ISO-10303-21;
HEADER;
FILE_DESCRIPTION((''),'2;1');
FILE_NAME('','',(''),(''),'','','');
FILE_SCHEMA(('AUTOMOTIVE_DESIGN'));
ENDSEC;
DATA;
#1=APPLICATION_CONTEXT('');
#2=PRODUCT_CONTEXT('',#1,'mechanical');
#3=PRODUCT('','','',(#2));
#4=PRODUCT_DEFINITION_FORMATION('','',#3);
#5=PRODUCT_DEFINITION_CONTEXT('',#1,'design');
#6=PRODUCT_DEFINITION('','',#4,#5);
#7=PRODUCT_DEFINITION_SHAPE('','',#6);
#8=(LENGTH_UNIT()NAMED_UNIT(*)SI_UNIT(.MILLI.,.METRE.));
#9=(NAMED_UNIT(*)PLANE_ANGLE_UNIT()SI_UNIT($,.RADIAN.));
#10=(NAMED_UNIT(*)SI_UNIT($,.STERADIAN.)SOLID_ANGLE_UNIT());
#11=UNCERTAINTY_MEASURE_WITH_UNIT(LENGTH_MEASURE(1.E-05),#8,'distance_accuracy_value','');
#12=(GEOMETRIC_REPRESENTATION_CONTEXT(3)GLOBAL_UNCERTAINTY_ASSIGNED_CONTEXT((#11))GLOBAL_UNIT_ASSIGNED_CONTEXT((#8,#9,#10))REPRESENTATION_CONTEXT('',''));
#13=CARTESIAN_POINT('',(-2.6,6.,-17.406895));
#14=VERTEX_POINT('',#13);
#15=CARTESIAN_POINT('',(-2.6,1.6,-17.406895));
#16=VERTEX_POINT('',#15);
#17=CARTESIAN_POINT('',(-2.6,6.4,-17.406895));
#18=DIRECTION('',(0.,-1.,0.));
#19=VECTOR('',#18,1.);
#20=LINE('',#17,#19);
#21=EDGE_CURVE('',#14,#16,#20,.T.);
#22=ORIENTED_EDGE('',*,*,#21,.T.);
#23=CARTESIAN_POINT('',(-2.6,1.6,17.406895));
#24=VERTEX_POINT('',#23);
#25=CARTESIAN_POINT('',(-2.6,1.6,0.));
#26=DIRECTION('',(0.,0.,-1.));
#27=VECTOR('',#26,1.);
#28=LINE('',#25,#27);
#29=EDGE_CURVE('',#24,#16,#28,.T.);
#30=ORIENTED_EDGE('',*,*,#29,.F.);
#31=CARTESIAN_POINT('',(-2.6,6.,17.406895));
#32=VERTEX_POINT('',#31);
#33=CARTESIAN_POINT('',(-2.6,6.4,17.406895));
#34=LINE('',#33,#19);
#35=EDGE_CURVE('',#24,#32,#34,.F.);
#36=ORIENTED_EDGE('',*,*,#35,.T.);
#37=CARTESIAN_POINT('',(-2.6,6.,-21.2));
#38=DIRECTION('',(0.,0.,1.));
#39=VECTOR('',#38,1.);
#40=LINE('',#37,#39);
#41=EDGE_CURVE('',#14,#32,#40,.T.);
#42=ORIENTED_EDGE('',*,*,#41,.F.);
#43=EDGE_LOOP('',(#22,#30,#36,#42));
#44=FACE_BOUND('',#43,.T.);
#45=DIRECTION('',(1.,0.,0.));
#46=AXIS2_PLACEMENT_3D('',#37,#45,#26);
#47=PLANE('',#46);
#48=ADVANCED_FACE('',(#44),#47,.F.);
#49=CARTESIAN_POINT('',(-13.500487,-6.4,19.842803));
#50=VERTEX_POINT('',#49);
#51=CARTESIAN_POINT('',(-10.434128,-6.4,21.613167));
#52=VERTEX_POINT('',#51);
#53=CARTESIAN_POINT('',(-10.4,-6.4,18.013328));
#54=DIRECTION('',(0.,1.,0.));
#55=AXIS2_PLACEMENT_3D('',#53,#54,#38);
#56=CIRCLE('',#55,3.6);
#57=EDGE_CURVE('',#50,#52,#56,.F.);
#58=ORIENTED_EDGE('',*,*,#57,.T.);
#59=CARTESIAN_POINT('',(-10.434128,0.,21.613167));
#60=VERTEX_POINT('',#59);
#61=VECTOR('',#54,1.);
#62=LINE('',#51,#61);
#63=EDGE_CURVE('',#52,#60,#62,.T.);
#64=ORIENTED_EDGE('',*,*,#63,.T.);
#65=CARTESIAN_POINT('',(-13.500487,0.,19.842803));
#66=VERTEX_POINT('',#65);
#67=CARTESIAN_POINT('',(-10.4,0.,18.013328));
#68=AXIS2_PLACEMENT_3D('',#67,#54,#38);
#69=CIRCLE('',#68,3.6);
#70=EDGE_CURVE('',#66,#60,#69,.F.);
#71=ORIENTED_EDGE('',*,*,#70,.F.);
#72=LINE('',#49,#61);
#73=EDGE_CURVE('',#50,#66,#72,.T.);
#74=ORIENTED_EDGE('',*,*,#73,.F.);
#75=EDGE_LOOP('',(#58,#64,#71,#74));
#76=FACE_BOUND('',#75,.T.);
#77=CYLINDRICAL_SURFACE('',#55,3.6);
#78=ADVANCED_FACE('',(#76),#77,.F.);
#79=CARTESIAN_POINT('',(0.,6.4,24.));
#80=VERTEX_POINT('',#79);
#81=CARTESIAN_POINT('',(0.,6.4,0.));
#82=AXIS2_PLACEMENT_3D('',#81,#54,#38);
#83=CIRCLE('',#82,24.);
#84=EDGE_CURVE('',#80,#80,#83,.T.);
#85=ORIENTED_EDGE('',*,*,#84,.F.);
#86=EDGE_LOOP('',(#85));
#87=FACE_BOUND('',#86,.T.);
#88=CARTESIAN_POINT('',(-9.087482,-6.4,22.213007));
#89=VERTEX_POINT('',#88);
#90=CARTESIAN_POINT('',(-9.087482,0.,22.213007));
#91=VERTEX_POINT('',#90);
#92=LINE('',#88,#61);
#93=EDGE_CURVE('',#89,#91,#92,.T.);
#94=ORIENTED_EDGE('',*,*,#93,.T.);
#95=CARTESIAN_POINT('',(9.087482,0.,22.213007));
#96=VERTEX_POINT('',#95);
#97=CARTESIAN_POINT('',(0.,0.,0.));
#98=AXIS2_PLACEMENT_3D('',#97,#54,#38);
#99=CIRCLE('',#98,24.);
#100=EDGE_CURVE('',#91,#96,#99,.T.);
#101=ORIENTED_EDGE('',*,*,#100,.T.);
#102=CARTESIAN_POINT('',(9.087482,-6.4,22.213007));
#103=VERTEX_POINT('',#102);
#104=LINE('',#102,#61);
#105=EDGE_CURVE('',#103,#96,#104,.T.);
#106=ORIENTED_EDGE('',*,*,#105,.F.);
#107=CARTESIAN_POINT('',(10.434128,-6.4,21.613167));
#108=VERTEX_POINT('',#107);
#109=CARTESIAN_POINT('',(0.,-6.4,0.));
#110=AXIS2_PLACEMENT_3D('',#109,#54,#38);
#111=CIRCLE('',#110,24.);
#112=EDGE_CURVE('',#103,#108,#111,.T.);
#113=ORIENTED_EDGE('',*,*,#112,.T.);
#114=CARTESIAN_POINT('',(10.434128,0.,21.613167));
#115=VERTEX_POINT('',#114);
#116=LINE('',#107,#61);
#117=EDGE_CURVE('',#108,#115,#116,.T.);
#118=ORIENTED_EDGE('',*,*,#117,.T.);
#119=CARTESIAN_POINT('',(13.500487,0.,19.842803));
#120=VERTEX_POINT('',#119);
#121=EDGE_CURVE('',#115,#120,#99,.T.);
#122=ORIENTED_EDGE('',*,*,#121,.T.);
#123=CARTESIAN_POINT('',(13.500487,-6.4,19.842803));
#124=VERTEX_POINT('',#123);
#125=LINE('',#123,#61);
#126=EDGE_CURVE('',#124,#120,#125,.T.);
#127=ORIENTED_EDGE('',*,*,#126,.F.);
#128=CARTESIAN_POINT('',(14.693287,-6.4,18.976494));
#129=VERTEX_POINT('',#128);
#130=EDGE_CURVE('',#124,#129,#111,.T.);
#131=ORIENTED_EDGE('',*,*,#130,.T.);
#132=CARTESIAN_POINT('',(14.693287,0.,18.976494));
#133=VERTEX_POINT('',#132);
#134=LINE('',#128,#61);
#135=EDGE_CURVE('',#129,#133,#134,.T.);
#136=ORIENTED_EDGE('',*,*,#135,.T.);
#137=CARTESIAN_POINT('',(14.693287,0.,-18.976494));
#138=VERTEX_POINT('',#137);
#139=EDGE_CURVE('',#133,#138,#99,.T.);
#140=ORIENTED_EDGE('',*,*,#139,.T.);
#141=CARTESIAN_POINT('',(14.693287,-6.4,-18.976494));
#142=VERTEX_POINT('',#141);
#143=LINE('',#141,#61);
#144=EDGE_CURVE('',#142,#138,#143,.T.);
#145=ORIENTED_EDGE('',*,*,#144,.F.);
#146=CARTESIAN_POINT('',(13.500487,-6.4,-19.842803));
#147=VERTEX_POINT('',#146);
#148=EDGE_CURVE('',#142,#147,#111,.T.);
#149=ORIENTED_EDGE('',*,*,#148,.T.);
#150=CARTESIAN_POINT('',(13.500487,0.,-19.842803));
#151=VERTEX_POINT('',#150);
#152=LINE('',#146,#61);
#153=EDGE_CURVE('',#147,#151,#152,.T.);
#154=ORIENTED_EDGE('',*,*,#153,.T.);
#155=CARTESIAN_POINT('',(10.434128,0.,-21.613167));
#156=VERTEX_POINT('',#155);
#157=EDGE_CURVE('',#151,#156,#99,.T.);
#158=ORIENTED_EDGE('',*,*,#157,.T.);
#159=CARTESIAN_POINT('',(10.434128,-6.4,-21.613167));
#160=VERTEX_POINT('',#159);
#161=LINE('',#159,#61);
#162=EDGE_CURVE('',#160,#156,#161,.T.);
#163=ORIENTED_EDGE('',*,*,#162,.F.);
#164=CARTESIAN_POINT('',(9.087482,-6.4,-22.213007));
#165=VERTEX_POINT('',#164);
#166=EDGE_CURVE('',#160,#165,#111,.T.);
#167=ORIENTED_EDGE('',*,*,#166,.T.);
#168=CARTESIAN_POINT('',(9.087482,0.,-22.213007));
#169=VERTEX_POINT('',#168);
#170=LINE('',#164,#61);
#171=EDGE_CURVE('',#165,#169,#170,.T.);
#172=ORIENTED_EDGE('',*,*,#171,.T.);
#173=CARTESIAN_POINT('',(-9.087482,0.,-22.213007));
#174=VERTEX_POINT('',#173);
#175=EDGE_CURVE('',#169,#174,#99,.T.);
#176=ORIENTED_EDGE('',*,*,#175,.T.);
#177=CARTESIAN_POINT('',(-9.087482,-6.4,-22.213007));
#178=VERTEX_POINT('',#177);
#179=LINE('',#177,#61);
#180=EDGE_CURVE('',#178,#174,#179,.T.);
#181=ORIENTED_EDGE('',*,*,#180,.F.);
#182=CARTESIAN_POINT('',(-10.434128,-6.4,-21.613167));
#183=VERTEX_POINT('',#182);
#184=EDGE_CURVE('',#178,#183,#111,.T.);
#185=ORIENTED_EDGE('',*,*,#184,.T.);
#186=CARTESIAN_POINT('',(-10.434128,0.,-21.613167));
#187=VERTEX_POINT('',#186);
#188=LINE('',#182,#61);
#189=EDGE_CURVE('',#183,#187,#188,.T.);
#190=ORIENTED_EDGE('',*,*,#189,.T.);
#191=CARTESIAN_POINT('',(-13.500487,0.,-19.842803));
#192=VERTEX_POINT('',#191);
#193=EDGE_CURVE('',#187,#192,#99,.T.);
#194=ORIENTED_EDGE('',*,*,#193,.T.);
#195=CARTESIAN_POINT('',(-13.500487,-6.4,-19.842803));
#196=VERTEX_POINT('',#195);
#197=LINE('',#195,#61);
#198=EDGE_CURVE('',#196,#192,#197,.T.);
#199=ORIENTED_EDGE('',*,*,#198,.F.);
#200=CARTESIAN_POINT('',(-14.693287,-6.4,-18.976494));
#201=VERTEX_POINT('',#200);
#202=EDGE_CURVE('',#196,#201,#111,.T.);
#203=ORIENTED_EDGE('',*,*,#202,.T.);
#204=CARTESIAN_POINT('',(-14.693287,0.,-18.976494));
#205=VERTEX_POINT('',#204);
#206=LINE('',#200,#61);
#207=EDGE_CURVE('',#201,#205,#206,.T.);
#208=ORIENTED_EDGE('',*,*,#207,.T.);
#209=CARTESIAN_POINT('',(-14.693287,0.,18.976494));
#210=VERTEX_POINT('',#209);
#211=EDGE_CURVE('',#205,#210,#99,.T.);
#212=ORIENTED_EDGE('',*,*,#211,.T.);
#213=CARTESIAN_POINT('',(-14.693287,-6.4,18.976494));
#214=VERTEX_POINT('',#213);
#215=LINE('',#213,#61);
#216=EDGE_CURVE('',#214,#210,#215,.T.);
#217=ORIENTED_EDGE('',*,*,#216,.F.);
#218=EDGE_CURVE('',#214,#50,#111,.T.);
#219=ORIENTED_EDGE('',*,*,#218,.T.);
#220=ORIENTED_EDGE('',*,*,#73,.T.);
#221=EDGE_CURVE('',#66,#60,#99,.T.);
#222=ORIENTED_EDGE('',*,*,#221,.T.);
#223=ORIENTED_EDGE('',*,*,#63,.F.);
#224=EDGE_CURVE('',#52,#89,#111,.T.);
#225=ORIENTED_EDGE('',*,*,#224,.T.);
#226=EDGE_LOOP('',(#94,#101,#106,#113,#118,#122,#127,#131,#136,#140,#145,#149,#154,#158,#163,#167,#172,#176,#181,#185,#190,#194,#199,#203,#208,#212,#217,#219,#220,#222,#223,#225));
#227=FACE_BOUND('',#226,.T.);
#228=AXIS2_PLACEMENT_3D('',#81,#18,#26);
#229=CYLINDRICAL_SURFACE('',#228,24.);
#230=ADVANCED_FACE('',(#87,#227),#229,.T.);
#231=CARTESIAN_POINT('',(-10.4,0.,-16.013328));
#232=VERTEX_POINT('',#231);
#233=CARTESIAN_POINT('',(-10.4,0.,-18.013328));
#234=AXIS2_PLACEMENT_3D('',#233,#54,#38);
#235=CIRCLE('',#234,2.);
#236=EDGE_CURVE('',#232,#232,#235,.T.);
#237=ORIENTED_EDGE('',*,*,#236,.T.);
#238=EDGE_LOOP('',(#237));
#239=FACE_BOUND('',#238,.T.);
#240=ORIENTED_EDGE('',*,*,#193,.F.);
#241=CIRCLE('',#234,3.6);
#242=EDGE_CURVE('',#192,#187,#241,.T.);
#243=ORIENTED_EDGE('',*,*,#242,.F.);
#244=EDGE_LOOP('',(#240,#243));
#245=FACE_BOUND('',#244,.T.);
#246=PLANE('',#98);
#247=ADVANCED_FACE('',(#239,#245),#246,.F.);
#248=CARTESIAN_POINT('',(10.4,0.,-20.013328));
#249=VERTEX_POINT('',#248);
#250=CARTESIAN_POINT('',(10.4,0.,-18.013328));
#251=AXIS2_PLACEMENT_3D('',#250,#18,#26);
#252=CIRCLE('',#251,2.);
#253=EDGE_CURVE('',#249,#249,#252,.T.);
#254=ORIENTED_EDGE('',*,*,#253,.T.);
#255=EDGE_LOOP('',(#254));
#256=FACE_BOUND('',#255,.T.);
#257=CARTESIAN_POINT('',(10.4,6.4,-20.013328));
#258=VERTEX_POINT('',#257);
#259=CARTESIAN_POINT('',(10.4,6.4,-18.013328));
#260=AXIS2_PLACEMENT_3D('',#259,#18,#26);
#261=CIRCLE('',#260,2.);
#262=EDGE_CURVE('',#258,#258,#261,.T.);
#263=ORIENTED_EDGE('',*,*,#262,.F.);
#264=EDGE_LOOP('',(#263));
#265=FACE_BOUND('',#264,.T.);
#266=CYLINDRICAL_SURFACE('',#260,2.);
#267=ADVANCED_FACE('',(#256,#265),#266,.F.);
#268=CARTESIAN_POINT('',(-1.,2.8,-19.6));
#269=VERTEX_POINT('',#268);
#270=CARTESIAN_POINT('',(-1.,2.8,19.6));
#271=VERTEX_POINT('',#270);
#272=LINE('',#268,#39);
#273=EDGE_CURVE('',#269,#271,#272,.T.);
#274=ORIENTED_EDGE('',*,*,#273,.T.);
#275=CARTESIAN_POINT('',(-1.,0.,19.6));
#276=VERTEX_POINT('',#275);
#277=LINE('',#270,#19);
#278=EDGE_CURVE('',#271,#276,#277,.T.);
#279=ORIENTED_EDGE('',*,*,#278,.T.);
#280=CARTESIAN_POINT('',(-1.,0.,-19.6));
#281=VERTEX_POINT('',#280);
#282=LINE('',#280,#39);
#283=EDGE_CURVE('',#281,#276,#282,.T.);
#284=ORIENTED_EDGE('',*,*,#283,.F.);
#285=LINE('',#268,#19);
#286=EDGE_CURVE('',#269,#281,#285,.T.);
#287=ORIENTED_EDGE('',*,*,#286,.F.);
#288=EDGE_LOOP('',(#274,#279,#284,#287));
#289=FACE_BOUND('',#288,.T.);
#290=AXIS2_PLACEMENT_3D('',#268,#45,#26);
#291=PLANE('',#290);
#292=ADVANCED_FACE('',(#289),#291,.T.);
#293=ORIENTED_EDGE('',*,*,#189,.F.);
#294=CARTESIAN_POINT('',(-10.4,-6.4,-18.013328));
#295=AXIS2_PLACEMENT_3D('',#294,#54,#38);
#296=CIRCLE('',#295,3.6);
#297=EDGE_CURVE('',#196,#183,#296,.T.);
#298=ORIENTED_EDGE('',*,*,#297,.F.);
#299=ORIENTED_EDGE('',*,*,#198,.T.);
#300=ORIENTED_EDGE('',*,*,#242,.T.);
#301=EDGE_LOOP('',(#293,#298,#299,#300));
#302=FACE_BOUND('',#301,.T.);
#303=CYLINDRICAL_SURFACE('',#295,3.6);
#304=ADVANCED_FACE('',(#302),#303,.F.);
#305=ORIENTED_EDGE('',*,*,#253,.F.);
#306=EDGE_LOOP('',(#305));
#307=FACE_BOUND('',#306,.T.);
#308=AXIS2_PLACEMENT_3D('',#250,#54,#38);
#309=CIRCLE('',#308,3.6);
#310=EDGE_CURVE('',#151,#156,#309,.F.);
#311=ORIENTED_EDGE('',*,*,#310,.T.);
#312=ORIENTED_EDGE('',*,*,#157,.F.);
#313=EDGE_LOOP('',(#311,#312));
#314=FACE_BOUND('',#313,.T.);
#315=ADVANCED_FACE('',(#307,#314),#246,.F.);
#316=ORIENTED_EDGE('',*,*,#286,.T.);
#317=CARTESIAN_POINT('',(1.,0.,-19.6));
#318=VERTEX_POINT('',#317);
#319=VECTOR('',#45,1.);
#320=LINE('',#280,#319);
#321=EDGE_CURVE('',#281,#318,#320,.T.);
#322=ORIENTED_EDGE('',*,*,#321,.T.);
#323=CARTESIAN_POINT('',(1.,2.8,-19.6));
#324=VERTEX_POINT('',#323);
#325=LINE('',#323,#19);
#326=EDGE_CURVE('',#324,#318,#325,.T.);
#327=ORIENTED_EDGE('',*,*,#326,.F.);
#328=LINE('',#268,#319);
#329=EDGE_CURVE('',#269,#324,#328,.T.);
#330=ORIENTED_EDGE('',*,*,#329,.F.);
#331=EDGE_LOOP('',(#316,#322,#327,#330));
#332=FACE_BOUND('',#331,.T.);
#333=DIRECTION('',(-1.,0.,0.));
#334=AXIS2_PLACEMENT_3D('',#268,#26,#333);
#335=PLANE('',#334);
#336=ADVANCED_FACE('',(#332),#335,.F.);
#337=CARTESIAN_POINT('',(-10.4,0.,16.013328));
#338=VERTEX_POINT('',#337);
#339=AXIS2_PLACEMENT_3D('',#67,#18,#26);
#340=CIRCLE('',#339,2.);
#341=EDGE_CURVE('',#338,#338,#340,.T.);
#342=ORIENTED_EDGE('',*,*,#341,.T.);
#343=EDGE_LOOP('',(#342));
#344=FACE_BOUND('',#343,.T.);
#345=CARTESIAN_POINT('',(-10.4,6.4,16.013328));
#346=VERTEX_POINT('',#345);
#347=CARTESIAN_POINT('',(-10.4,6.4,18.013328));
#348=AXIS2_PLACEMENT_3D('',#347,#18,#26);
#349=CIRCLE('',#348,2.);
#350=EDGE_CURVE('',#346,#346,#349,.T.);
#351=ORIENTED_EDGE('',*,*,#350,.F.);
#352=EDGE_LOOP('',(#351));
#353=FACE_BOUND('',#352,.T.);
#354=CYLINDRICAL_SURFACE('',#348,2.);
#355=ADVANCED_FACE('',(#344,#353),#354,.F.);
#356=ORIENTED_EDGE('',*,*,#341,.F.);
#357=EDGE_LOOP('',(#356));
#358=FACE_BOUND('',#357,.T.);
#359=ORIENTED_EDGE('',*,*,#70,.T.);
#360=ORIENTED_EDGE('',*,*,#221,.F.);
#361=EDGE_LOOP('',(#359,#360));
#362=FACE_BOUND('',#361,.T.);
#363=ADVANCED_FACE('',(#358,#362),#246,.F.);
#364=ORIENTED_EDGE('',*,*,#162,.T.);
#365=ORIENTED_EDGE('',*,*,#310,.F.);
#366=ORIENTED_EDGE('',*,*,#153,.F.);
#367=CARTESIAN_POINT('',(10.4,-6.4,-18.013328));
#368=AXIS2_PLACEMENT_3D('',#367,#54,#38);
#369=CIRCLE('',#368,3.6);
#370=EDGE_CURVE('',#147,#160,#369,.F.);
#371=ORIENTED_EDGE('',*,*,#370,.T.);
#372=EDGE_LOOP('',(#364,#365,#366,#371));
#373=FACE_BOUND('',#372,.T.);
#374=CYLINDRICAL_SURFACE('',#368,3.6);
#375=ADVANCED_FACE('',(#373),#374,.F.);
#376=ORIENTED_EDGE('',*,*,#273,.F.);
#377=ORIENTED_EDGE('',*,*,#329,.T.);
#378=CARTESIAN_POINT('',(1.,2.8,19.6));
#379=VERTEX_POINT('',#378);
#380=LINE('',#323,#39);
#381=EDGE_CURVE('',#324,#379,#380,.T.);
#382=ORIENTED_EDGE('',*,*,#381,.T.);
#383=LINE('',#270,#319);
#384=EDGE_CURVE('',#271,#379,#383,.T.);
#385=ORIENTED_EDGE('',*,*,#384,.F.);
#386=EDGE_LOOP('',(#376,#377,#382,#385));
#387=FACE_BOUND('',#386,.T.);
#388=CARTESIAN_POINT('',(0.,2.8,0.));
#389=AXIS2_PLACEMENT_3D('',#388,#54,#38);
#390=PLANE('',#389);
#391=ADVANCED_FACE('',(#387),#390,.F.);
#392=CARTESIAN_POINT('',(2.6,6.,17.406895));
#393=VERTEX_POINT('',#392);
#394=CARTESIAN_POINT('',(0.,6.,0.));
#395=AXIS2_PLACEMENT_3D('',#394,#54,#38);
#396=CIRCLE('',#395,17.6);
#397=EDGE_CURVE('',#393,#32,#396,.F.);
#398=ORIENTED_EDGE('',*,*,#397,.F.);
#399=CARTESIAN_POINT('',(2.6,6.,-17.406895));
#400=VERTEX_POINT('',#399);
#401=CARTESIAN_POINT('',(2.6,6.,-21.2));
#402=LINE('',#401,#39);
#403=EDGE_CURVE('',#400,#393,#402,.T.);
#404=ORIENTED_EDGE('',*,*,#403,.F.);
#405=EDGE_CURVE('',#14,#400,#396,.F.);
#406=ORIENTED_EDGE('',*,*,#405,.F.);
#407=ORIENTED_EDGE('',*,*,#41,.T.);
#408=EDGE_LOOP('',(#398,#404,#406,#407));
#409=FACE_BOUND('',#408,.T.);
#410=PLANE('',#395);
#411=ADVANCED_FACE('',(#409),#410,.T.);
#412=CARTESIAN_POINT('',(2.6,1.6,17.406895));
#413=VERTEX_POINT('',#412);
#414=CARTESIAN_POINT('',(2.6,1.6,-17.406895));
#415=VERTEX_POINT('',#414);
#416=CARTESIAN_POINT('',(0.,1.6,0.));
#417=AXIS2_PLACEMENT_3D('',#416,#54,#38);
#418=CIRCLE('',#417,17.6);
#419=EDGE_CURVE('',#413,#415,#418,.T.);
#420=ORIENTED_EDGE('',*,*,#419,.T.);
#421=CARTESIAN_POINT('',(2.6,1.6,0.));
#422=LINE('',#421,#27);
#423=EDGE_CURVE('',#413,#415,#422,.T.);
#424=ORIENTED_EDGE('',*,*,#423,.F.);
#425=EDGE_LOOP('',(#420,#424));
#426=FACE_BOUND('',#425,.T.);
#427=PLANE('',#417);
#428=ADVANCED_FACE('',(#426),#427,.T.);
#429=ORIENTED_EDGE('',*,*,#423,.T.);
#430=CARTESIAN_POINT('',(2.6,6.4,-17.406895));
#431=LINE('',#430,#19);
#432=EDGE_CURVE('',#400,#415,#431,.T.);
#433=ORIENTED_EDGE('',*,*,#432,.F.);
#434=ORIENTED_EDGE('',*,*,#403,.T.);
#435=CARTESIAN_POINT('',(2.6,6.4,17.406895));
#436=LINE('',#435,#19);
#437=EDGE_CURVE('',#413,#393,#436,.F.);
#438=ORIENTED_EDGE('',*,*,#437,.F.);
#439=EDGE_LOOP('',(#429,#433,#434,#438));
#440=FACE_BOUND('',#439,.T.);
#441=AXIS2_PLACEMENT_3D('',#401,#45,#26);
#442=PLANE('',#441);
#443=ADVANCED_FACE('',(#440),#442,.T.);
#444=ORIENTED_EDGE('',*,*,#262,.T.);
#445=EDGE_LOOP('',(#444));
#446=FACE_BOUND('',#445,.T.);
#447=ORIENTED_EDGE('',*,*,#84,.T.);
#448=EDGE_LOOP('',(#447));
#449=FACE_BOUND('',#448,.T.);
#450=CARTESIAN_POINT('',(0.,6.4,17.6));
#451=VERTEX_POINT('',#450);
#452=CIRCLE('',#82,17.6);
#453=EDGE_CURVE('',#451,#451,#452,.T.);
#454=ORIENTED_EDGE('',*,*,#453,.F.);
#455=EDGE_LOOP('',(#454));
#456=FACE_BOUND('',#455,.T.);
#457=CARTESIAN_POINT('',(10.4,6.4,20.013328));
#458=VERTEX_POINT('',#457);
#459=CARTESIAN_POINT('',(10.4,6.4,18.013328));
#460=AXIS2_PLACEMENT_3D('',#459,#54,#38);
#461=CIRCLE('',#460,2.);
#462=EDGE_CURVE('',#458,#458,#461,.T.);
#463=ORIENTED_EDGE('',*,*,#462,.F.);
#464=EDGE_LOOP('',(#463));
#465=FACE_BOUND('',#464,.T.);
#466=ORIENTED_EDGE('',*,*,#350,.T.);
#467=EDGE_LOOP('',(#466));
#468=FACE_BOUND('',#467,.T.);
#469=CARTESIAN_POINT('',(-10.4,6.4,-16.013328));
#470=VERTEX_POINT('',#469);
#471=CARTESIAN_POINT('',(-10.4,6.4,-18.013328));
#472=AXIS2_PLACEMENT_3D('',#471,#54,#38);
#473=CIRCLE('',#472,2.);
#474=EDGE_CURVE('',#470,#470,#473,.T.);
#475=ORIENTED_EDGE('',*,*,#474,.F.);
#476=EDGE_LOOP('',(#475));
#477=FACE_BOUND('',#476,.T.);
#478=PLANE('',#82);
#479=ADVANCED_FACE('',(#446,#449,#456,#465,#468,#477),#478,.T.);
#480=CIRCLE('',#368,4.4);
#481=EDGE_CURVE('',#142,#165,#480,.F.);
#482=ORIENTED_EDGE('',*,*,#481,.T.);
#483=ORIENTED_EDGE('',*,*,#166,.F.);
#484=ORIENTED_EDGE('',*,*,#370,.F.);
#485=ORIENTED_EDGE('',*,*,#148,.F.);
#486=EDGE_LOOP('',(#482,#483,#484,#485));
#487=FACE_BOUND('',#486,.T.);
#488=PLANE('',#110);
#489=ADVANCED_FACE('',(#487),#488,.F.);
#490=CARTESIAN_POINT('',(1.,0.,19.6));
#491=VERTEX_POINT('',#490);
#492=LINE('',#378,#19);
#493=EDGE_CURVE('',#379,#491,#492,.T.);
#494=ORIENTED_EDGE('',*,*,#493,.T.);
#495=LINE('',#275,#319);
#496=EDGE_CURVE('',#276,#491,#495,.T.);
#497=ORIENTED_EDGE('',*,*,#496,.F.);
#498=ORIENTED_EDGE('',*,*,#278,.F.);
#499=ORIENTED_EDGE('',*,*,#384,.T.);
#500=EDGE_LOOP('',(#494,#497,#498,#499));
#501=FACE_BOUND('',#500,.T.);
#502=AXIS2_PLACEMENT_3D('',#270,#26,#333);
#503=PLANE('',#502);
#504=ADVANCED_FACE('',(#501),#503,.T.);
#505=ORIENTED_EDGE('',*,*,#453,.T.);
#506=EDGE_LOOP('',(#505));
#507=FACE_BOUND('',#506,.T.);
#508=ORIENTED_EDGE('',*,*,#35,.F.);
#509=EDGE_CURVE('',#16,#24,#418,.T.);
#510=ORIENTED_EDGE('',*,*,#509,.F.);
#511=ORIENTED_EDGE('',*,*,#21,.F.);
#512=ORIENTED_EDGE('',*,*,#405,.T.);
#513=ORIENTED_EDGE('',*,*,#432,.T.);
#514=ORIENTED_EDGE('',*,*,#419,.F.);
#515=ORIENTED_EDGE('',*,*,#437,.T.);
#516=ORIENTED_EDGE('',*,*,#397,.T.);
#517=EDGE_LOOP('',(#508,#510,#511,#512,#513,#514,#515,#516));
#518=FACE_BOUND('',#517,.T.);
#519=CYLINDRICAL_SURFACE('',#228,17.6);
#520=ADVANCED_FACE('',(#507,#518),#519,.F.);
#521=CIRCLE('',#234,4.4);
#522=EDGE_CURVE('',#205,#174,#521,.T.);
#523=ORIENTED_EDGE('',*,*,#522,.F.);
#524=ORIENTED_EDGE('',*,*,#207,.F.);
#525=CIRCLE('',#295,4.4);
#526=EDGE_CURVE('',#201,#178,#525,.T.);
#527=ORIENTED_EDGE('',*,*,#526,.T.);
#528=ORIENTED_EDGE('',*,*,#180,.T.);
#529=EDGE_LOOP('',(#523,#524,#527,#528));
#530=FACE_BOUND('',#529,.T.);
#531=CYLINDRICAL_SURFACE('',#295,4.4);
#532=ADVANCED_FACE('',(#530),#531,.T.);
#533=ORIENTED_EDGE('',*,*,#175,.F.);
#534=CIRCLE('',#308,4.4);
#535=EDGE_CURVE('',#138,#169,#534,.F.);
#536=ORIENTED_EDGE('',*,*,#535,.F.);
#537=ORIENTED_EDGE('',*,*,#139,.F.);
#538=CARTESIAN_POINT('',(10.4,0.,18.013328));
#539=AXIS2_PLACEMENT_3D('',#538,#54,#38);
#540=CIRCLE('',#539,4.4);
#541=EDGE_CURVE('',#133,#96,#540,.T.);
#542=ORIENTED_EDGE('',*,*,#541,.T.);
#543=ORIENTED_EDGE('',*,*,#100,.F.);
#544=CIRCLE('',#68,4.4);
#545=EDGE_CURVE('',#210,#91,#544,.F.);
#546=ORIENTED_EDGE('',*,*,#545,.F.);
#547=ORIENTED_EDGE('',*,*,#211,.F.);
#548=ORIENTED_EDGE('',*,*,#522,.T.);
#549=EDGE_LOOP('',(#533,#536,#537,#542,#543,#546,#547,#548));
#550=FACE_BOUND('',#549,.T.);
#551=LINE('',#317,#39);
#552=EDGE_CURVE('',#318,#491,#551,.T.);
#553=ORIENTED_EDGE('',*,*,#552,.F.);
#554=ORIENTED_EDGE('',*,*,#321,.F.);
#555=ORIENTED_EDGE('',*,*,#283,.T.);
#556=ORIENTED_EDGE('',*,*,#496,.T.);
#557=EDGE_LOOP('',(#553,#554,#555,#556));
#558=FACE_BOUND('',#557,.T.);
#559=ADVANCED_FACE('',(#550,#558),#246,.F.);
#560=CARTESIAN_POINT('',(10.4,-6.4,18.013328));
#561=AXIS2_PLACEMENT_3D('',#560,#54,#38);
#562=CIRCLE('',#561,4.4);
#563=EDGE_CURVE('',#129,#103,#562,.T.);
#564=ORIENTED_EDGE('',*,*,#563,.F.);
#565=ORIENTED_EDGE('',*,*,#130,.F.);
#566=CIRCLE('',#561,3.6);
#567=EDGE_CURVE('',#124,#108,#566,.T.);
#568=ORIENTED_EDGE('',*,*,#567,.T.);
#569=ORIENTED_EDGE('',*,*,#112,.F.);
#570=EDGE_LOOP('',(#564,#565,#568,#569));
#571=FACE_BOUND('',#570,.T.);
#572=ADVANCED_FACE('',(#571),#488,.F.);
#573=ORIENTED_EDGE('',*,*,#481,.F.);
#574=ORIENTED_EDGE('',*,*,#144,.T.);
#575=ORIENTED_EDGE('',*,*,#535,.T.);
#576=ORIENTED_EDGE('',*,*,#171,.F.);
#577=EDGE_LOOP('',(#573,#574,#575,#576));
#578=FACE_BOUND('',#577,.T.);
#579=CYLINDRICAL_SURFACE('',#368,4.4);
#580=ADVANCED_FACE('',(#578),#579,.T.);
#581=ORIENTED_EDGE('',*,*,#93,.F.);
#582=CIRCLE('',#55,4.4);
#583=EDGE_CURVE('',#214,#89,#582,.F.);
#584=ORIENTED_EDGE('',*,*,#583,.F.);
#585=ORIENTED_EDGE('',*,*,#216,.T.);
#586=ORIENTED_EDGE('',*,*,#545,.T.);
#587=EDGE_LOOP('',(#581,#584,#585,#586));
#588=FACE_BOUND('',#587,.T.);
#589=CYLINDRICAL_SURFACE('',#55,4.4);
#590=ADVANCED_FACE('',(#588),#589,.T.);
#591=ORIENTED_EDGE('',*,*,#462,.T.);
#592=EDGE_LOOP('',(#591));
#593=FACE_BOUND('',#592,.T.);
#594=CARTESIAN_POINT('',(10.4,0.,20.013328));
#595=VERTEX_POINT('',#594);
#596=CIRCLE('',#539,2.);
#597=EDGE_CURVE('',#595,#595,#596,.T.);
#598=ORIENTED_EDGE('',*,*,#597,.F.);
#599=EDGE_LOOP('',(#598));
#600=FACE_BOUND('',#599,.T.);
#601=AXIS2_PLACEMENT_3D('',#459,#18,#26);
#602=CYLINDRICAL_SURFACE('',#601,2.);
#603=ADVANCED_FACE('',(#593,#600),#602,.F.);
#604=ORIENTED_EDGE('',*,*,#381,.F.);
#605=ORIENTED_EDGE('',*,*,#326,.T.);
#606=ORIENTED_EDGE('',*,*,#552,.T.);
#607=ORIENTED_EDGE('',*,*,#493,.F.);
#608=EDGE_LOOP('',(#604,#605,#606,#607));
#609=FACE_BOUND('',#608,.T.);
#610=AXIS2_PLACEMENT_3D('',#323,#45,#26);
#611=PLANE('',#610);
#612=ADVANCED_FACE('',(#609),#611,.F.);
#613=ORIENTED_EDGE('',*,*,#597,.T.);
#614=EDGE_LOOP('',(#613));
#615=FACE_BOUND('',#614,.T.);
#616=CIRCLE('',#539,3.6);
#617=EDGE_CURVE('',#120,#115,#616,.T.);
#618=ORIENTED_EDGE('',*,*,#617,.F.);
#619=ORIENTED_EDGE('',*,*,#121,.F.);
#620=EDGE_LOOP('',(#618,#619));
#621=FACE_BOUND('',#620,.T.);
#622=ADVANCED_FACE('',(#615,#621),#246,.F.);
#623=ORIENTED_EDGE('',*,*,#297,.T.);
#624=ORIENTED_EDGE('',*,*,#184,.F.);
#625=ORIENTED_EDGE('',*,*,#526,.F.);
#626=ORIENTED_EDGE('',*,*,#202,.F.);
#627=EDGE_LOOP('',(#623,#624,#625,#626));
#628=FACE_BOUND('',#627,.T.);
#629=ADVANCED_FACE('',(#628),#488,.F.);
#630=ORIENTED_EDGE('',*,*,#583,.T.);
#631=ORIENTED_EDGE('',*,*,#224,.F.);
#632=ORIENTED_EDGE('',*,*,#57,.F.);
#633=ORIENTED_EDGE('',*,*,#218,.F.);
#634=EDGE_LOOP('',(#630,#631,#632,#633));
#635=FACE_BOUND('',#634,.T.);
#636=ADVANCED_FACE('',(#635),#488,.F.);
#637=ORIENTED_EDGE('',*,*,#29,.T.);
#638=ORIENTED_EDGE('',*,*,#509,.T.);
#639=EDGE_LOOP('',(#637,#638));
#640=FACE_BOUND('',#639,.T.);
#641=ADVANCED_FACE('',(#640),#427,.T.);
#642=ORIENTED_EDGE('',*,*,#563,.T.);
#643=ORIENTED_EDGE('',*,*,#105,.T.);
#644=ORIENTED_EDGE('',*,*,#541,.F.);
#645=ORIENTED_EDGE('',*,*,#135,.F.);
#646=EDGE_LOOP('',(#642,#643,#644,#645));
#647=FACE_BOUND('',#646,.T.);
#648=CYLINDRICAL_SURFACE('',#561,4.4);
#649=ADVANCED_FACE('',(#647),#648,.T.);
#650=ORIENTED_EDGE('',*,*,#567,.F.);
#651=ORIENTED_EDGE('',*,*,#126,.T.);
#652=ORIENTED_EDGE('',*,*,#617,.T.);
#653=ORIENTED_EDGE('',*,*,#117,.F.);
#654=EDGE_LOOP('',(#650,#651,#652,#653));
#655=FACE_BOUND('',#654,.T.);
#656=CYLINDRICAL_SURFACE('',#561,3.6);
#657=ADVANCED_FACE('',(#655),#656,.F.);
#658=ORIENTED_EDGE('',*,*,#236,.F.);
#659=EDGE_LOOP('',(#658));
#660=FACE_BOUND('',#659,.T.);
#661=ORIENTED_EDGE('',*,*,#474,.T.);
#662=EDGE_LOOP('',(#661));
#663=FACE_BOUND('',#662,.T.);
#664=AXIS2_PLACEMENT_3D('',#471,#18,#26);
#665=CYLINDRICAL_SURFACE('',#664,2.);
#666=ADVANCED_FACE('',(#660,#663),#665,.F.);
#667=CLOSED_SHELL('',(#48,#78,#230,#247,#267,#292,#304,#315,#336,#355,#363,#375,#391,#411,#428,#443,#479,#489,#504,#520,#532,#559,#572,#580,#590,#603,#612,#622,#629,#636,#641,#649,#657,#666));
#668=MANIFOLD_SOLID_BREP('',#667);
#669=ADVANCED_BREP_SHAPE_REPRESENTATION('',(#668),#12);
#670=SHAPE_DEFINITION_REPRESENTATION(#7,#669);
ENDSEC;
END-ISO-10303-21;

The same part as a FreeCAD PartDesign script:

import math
import FreeCAD as App
import Part
import Sketcher

V = App.Vector


def add_polygon(sketch, points):
    """Adds a closed chain of lines whose ends are joined by coincident constraints."""
    first, n = sketch.GeometryCount, len(points)
    for a, b in zip(points, points[1:] + points[:1]):
        sketch.addGeometry(Part.LineSegment(App.Vector(*a, 0), App.Vector(*b, 0)), False)
    for i in range(n):
        sketch.addConstraint(Sketcher.Constraint("Coincident", first + i, 2, first + (i + 1) % n, 1))

doc = App.newDocument("Part")
body = doc.addObject("PartDesign::Body", "Body")

# Sketch on XZ plane
sketch1 = body.newObject("Sketcher::SketchObject", "Sketch")
sketch1.AttachmentSupport = (doc.getObject("XZ_Plane"), [""])
sketch1.MapMode = "FlatFace"
sketch1.addGeometry(Part.Circle(V(0, 0, 0), V(0, 0, 1), 18), False)
sketch1.addConstraint([
    Sketcher.Constraint("Coincident", 0, 3, -1, 1),
    Sketcher.Constraint("Diameter", 0, 35.2),
])
pad1 = body.newObject("PartDesign::Pad", "Pad")
pad1.Profile = sketch1
pad1.Length = 1.6
pad1.Reversed = True

# Sketch on XZ plane
sketch2 = body.newObject("Sketcher::SketchObject", "Sketch001")
sketch2.AttachmentSupport = (doc.getObject("XZ_Plane"), [""])
sketch2.MapMode = "FlatFace"
add_polygon(sketch2, [(-3, -21), (-3, 21), (3, 21), (3, -21)])  # lines 0-3
sketch2.addConstraint([
    Sketcher.Constraint("Vertical", 0),
    Sketcher.Constraint("Horizontal", 1),
    Sketcher.Constraint("Vertical", 2),
    Sketcher.Constraint("Horizontal", 3),
    Sketcher.Constraint("Symmetric", 0, 2, 2, 2, -1, 1),
    Sketcher.Constraint("DistanceX", 1, 1, 1, 2, 5.2),
    Sketcher.Constraint("DistanceY", 0, 1, 0, 2, 42.4),
])
pad2 = body.newObject("PartDesign::Pad", "Pad001")
pad2.Profile = sketch2
pad2.Length = 6
pad2.Reversed = True

# Sketch on XZ plane
sketch3 = body.newObject("Sketcher::SketchObject", "Sketch002")
sketch3.AttachmentSupport = (doc.getObject("XZ_Plane"), [""])
sketch3.MapMode = "FlatFace"
sketch3.addGeometry([
    Part.Circle(V(0, 0, 0), V(0, 0, 1), 24),  # 0
    Part.Circle(V(-10.4, -18, 0), V(0, 0, 1), 2),  # 1
    Part.Circle(V(-10.4, 18, 0), V(0, 0, 1), 2),  # 2
    Part.Circle(V(10.4, -18, 0), V(0, 0, 1), 2),  # 3
    Part.Circle(V(0, 0, 0), V(0, 0, 1), 17.6),  # 4
    Part.Circle(V(10.4, 18, 0), V(0, 0, 1), 2),  # 5
], False)
sketch3.addConstraint([
    Sketcher.Constraint("Coincident", 0, 3, -1, 1),
    Sketcher.Constraint("Coincident", 4, 3, -1, 1),
    Sketcher.Constraint("Equal", 1, 2),
    Sketcher.Constraint("Equal", 2, 3),
    Sketcher.Constraint("Equal", 3, 5),
    Sketcher.Constraint("Symmetric", 2, 3, 3, 3, -1, 1),
    Sketcher.Constraint("Symmetric", 1, 3, 5, 3, -1, 1),
    Sketcher.Constraint("Symmetric", 1, 3, 3, 3, -2),
    Sketcher.Constraint("Diameter", 0, 48.0),
    Sketcher.Constraint("Diameter", 1, 4.0),
    Sketcher.Constraint("Diameter", 4, 35.2),
    Sketcher.Constraint("DistanceX", 1, 3, -1, 1, 10.4),
    Sketcher.Constraint("DistanceY", 1, 3, -1, 1, 18.013328),
])
pad3 = body.newObject("PartDesign::Pad", "Pad002")
pad3.Profile = sketch3
pad3.Length = 6.4
pad3.Reversed = True

# Sketch on XZ plane
sketch4 = body.newObject("Sketcher::SketchObject", "Sketch003")
sketch4.AttachmentSupport = (doc.getObject("XZ_Plane"), [""])
sketch4.MapMode = "FlatFace"
sketch4.AttachmentOffset = App.Placement(V(0, 0, 6.4), App.Rotation())
sketch4.addGeometry([
    Part.ArcOfCircle(Part.Circle(V(0, 0, 0), V(0, 0, 1), 24), math.radians(112.25), math.radians(115.77)),  # 0
    Part.ArcOfCircle(Part.Circle(V(-10.4, 18, 0), V(0, 0, 1), 4.4), math.radians(24), math.radians(73)),  # 1
    Part.ArcOfCircle(Part.Circle(V(-10.4, 18, 0), V(0, 0, 1), 4.4), math.radians(-21), math.radians(24)),  # 2
    Part.ArcOfCircle(Part.Circle(V(-10.4, 18, 0), V(0, 0, 1), 4.4), math.radians(-99), math.radians(-21)),  # 3
    Part.ArcOfCircle(Part.Circle(V(-10.4, 18, 0), V(0, 0, 1), 4.4), math.radians(-144), math.radians(-99)),  # 4
    Part.ArcOfCircle(Part.Circle(V(-10.4, 18, 0), V(0, 0, 1), 4.4), math.radians(167), math.radians(216)),  # 5
    Part.ArcOfCircle(Part.Circle(V(0, 0, 0), V(0, 0, 1), 24), math.radians(124.23), math.radians(127.75)),  # 6
    Part.ArcOfCircle(Part.Circle(V(-10.4, 18, 0), V(0, 0, 1), 3.6), math.radians(149), math.radians(215)),  # 7
    Part.ArcOfCircle(Part.Circle(V(-10.4, 18, 0), V(0, 0, 1), 3.6), math.radians(-145), math.radians(-85)),  # 8
    Part.ArcOfCircle(Part.Circle(V(-10.4, 18, 0), V(0, 0, 1), 3.6), math.radians(-85), math.radians(-35)),  # 9
    Part.ArcOfCircle(Part.Circle(V(-10.4, 18, 0), V(0, 0, 1), 3.6), math.radians(-35), math.radians(25)),  # 10
    Part.ArcOfCircle(Part.Circle(V(-10.4, 18, 0), V(0, 0, 1), 3.6), math.radians(25), math.radians(91)),  # 11
    Part.ArcOfCircle(Part.Circle(V(10.4, 18, 0), V(0, 0, 1), 3.6), math.radians(155), math.radians(215)),  # 12
    Part.ArcOfCircle(Part.Circle(V(10.4, 18, 0), V(0, 0, 1), 3.6), math.radians(-145), math.radians(-95)),  # 13
    Part.ArcOfCircle(Part.Circle(V(10.4, 18, 0), V(0, 0, 1), 3.6), math.radians(-95), math.radians(-35)),  # 14
    Part.ArcOfCircle(Part.Circle(V(10.4, 18, 0), V(0, 0, 1), 3.6), math.radians(-35), math.radians(31)),  # 15
    Part.ArcOfCircle(Part.Circle(V(0, 0, 0), V(0, 0, 1), 24), math.radians(52.25), math.radians(55.77)),  # 16
    Part.ArcOfCircle(Part.Circle(V(10.4, 18, 0), V(0, 0, 1), 4.4), math.radians(-36), math.radians(13)),  # 17
    Part.ArcOfCircle(Part.Circle(V(10.4, 18, 0), V(0, 0, 1), 4.4), math.radians(-81), math.radians(-36)),  # 18
    Part.ArcOfCircle(Part.Circle(V(10.4, 18, 0), V(0, 0, 1), 4.4), math.radians(-159), math.radians(-81)),  # 19
    Part.ArcOfCircle(Part.Circle(V(10.4, 18, 0), V(0, 0, 1), 4.4), math.radians(156), math.radians(201)),  # 20
    Part.ArcOfCircle(Part.Circle(V(10.4, 18, 0), V(0, 0, 1), 4.4), math.radians(107), math.radians(156)),  # 21
    Part.ArcOfCircle(Part.Circle(V(0, 0, 0), V(0, 0, 1), 24), math.radians(64.23), math.radians(67.75)),  # 22
    Part.ArcOfCircle(Part.Circle(V(10.4, 18, 0), V(0, 0, 1), 3.6), math.radians(89), math.radians(155)),  # 23
    Part.ArcOfCircle(Part.Circle(V(10.4, -18, 0), V(0, 0, 1), 3.6), math.radians(-155), math.radians(-89)),  # 24
    Part.ArcOfCircle(Part.Circle(V(0, 0, 0), V(0, 0, 1), 24), math.radians(-67.75), math.radians(-64.23)),  # 25
    Part.ArcOfCircle(Part.Circle(V(10.4, -18, 0), V(0, 0, 1), 4.4), math.radians(-156), math.radians(-107)),  # 26
    Part.ArcOfCircle(Part.Circle(V(10.4, -18, 0), V(0, 0, 1), 4.4), math.radians(159), math.radians(204)),  # 27
    Part.ArcOfCircle(Part.Circle(V(10.4, -18, 0), V(0, 0, 1), 4.4), math.radians(81), math.radians(159)),  # 28
    Part.ArcOfCircle(Part.Circle(V(10.4, -18, 0), V(0, 0, 1), 4.4), math.radians(36), math.radians(81)),  # 29
    Part.ArcOfCircle(Part.Circle(V(10.4, -18, 0), V(0, 0, 1), 4.4), math.radians(-13), math.radians(36)),  # 30
    Part.ArcOfCircle(Part.Circle(V(0, 0, 0), V(0, 0, 1), 24), math.radians(-55.77), math.radians(-52.25)),  # 31
    Part.ArcOfCircle(Part.Circle(V(10.4, -18, 0), V(0, 0, 1), 3.6), math.radians(-31), math.radians(35)),  # 32
    Part.ArcOfCircle(Part.Circle(V(10.4, -18, 0), V(0, 0, 1), 3.6), math.radians(35), math.radians(95)),  # 33
    Part.ArcOfCircle(Part.Circle(V(10.4, -18, 0), V(0, 0, 1), 3.6), math.radians(95), math.radians(145)),  # 34
    Part.ArcOfCircle(Part.Circle(V(10.4, -18, 0), V(0, 0, 1), 3.6), math.radians(145), math.radians(205)),  # 35
    Part.ArcOfCircle(Part.Circle(V(-10.4, -18, 0), V(0, 0, 1), 4.4), math.radians(-24), math.radians(21)),  # 36
    Part.ArcOfCircle(Part.Circle(V(-10.4, -18, 0), V(0, 0, 1), 4.4), math.radians(-73), math.radians(-24)),  # 37
    Part.ArcOfCircle(Part.Circle(V(0, 0, 0), V(0, 0, 1), 24), math.radians(-115.77), math.radians(-112.25)),  # 38
    Part.ArcOfCircle(Part.Circle(V(-10.4, -18, 0), V(0, 0, 1), 3.6), math.radians(-91), math.radians(-25)),  # 39
    Part.ArcOfCircle(Part.Circle(V(-10.4, -18, 0), V(0, 0, 1), 3.6), math.radians(-25), math.radians(35)),  # 40
    Part.ArcOfCircle(Part.Circle(V(-10.4, -18, 0), V(0, 0, 1), 3.6), math.radians(35), math.radians(85)),  # 41
    Part.ArcOfCircle(Part.Circle(V(-10.4, -18, 0), V(0, 0, 1), 3.6), math.radians(85), math.radians(145)),  # 42
    Part.ArcOfCircle(Part.Circle(V(-10.4, -18, 0), V(0, 0, 1), 3.6), math.radians(145), math.radians(211)),  # 43
    Part.ArcOfCircle(Part.Circle(V(0, 0, 0), V(0, 0, 1), 24), math.radians(-127.75), math.radians(-124.23)),  # 44
    Part.ArcOfCircle(Part.Circle(V(-10.4, -18, 0), V(0, 0, 1), 4.4), math.radians(144), math.radians(193)),  # 45
    Part.ArcOfCircle(Part.Circle(V(-10.4, -18, 0), V(0, 0, 1), 4.4), math.radians(99), math.radians(144)),  # 46
    Part.ArcOfCircle(Part.Circle(V(-10.4, -18, 0), V(0, 0, 1), 4.4), math.radians(21), math.radians(99)),  # 47
], False)
sketch4.addConstraint([
    Sketcher.Constraint("Coincident", 0, 1, 1, 2),
    Sketcher.Constraint("Tangent", 1, 1, 2, 2),
    Sketcher.Constraint("Tangent", 2, 1, 3, 2),
    Sketcher.Constraint("Tangent", 3, 1, 4, 2),
    Sketcher.Constraint("Tangent", 4, 1, 5, 2),
    Sketcher.Constraint("Coincident", 5, 1, 6, 2),
    Sketcher.Constraint("Coincident", 6, 1, 7, 1),
    Sketcher.Constraint("Tangent", 7, 2, 8, 1),
    Sketcher.Constraint("Tangent", 8, 2, 9, 1),
    Sketcher.Constraint("Tangent", 9, 2, 10, 1),
    Sketcher.Constraint("Tangent", 10, 2, 11, 1),
    Sketcher.Constraint("Coincident", 11, 2, 0, 2),
    Sketcher.Constraint("Tangent", 12, 2, 13, 1),
    Sketcher.Constraint("Tangent", 13, 2, 14, 1),
    Sketcher.Constraint("Tangent", 14, 2, 15, 1),
    Sketcher.Constraint("Coincident", 15, 2, 16, 2),
    Sketcher.Constraint("Coincident", 16, 1, 17, 2),
    Sketcher.Constraint("Tangent", 17, 1, 18, 2),
    Sketcher.Constraint("Tangent", 18, 1, 19, 2),
    Sketcher.Constraint("Tangent", 19, 1, 20, 2),
    Sketcher.Constraint("Tangent", 20, 1, 21, 2),
    Sketcher.Constraint("Coincident", 21, 1, 22, 2),
    Sketcher.Constraint("Coincident", 22, 1, 23, 1),
    Sketcher.Constraint("Tangent", 23, 2, 12, 1),
    Sketcher.Constraint("Coincident", 24, 2, 25, 2),
    Sketcher.Constraint("Coincident", 25, 1, 26, 2),
    Sketcher.Constraint("Tangent", 26, 1, 27, 2),
    Sketcher.Constraint("Tangent", 27, 1, 28, 2),
    Sketcher.Constraint("Tangent", 28, 1, 29, 2),
    Sketcher.Constraint("Tangent", 29, 1, 30, 2),
    Sketcher.Constraint("Coincident", 30, 1, 31, 2),
    Sketcher.Constraint("Coincident", 31, 1, 32, 1),
    Sketcher.Constraint("Tangent", 32, 2, 33, 1),
    Sketcher.Constraint("Tangent", 33, 2, 34, 1),
    Sketcher.Constraint("Tangent", 34, 2, 35, 1),
    Sketcher.Constraint("Tangent", 35, 2, 24, 1),
    Sketcher.Constraint("Tangent", 36, 1, 37, 2),
    Sketcher.Constraint("Coincident", 37, 1, 38, 2),
    Sketcher.Constraint("Coincident", 38, 1, 39, 1),
    Sketcher.Constraint("Tangent", 39, 2, 40, 1),
    Sketcher.Constraint("Tangent", 40, 2, 41, 1),
    Sketcher.Constraint("Tangent", 41, 2, 42, 1),
    Sketcher.Constraint("Tangent", 42, 2, 43, 1),
    Sketcher.Constraint("Coincident", 43, 2, 44, 2),
    Sketcher.Constraint("Coincident", 44, 1, 45, 2),
    Sketcher.Constraint("Tangent", 45, 1, 46, 2),
    Sketcher.Constraint("Tangent", 46, 1, 47, 2),
    Sketcher.Constraint("Tangent", 47, 1, 36, 2),
    Sketcher.Constraint("Coincident", 0, 3, -1, 1),
    Sketcher.Constraint("Coincident", 6, 3, -1, 1),
    Sketcher.Constraint("Coincident", 16, 3, -1, 1),
    Sketcher.Constraint("Coincident", 22, 3, -1, 1),
    Sketcher.Constraint("Coincident", 25, 3, -1, 1),
    Sketcher.Constraint("Coincident", 31, 3, -1, 1),
    Sketcher.Constraint("Coincident", 38, 3, -1, 1),
    Sketcher.Constraint("Coincident", 44, 3, -1, 1),
    Sketcher.Constraint("Coincident", 3, 3, 1, 3),
    Sketcher.Constraint("Coincident", 5, 3, 1, 3),
    Sketcher.Constraint("Coincident", 7, 3, 1, 3),
    Sketcher.Constraint("Coincident", 9, 3, 1, 3),
    Sketcher.Constraint("Coincident", 11, 3, 1, 3),
    Sketcher.Constraint("Coincident", 14, 3, 12, 3),
    Sketcher.Constraint("Coincident", 17, 3, 12, 3),
    Sketcher.Constraint("Coincident", 19, 3, 12, 3),
    Sketcher.Constraint("Coincident", 21, 3, 12, 3),
    Sketcher.Constraint("Coincident", 26, 3, 24, 3),
    Sketcher.Constraint("Coincident", 28, 3, 24, 3),
    Sketcher.Constraint("Coincident", 30, 3, 24, 3),
    Sketcher.Constraint("Coincident", 32, 3, 24, 3),
    Sketcher.Constraint("Coincident", 34, 3, 24, 3),
    Sketcher.Constraint("Coincident", 39, 3, 36, 3),
    Sketcher.Constraint("Coincident", 41, 3, 36, 3),
    Sketcher.Constraint("Coincident", 43, 3, 36, 3),
    Sketcher.Constraint("Coincident", 45, 3, 36, 3),
    Sketcher.Constraint("Equal", 0, 6),
    Sketcher.Constraint("Equal", 11, 12),
    Sketcher.Constraint("Equal", 14, 15),
    Sketcher.Constraint("Equal", 6, 16),
    Sketcher.Constraint("Equal", 5, 17),
    Sketcher.Constraint("Equal", 16, 22),
    Sketcher.Constraint("Equal", 15, 23),
    Sketcher.Constraint("Equal", 23, 24),
    Sketcher.Constraint("Equal", 22, 25),
    Sketcher.Constraint("Equal", 21, 26),
    Sketcher.Constraint("Equal", 25, 31),
    Sketcher.Constraint("Equal", 30, 36),
    Sketcher.Constraint("Equal", 36, 37),
    Sketcher.Constraint("Equal", 31, 38),
    Sketcher.Constraint("Equal", 35, 39),
    Sketcher.Constraint("Equal", 38, 44),
    Sketcher.Constraint("Equal", 37, 45),
    Sketcher.Constraint("Symmetric", 1, 3, 24, 3, -1, 1),
    Sketcher.Constraint("Symmetric", 12, 3, 36, 3, -1, 1),
    Sketcher.Constraint("Symmetric", 1, 3, 12, 3, -2),
    Sketcher.Constraint("Horizontal", 9, 2, 12, 2),
    Sketcher.Constraint("Horizontal", 8, 2, 13, 2),
    Sketcher.Constraint("Horizontal", 7, 2, 14, 2),
    Sketcher.Constraint("Horizontal", 4, 1, 17, 1),
    Sketcher.Constraint("Horizontal", 3, 1, 18, 1),
    Sketcher.Constraint("Horizontal", 2, 1, 19, 1),
    Sketcher.Constraint("Horizontal", 1, 1, 20, 1),
    Sketcher.Constraint("Horizontal", 10, 2, 23, 2),
    Sketcher.Constraint("Horizontal", 26, 1, 36, 1),
    Sketcher.Constraint("Horizontal", 35, 2, 39, 2),
    Sketcher.Constraint("Horizontal", 34, 2, 40, 2),
    Sketcher.Constraint("Horizontal", 33, 2, 41, 2),
    Sketcher.Constraint("Horizontal", 32, 2, 42, 2),
    Sketcher.Constraint("Horizontal", 29, 1, 45, 1),
    Sketcher.Constraint("Horizontal", 28, 1, 46, 1),
    Sketcher.Constraint("Horizontal", 27, 1, 47, 1),
    Sketcher.Constraint("Vertical", 20, 1, 26, 1),
    Sketcher.Constraint("Vertical", 19, 1, 27, 1),
    Sketcher.Constraint("Vertical", 18, 1, 28, 1),
    Sketcher.Constraint("Vertical", 17, 1, 29, 1),
    Sketcher.Constraint("Vertical", 14, 2, 32, 2),
    Sketcher.Constraint("Vertical", 13, 2, 33, 2),
    Sketcher.Constraint("Vertical", 12, 2, 34, 2),
    Sketcher.Constraint("Vertical", 23, 2, 35, 2),
    Sketcher.Constraint("Radius", 0, 24.0),
    Sketcher.Constraint("Radius", 1, 4.4),
    Sketcher.Constraint("Radius", 7, 3.6),
    Sketcher.Constraint("DistanceX", 1, 3, -1, 1, 10.4),
    Sketcher.Constraint("DistanceY", -1, 1, 1, 3, 18.013328),
    Sketcher.Constraint("DistanceX", 1, 1, -1, 1, 6.37817),
    Sketcher.Constraint("DistanceY", -1, 1, 7, 2, 15.950281),
    Sketcher.Constraint("DistanceX", 8, 2, -1, 1, 10.079919),
    Sketcher.Constraint("DistanceY", -1, 1, 9, 2, 15.943259),
    Sketcher.Constraint("DistanceX", 2, 1, -1, 1, 6.292126),
    Sketcher.Constraint("DistanceX", 3, 1, -1, 1, 11.088644),
    Sketcher.Constraint("DistanceX", 4, 1, -1, 1, 13.956445),
    Sketcher.Constraint("DistanceX", 10, 2, -1, 1, 7.138235),
])
pad4 = body.newObject("PartDesign::Pad", "Pad003")
pad4.Profile = sketch4
pad4.Length = 6.4
pad4.Reversed = True

# Sketch on XZ plane
sketch5 = body.newObject("Sketcher::SketchObject", "Sketch004")
sketch5.AttachmentSupport = (doc.getObject("XZ_Plane"), [""])
sketch5.MapMode = "FlatFace"
add_polygon(sketch5, [(-1, -19.6), (-1, 19.6), (1, 19.6), (1, -19.6)])  # lines 0-3
sketch5.addConstraint([
    Sketcher.Constraint("Vertical", 0),
    Sketcher.Constraint("Horizontal", 1),
    Sketcher.Constraint("Vertical", 2),
    Sketcher.Constraint("Horizontal", 3),
    Sketcher.Constraint("Symmetric", 0, 2, 2, 2, -1, 1),
    Sketcher.Constraint("DistanceX", 1, 1, 1, 2, 2.0),
    Sketcher.Constraint("DistanceY", 0, 1, 0, 2, 39.2),
])
pocket1 = body.newObject("PartDesign::Pocket", "Pocket")
pocket1.Profile = sketch5
pocket1.Length = 2.8

doc.recompute()
